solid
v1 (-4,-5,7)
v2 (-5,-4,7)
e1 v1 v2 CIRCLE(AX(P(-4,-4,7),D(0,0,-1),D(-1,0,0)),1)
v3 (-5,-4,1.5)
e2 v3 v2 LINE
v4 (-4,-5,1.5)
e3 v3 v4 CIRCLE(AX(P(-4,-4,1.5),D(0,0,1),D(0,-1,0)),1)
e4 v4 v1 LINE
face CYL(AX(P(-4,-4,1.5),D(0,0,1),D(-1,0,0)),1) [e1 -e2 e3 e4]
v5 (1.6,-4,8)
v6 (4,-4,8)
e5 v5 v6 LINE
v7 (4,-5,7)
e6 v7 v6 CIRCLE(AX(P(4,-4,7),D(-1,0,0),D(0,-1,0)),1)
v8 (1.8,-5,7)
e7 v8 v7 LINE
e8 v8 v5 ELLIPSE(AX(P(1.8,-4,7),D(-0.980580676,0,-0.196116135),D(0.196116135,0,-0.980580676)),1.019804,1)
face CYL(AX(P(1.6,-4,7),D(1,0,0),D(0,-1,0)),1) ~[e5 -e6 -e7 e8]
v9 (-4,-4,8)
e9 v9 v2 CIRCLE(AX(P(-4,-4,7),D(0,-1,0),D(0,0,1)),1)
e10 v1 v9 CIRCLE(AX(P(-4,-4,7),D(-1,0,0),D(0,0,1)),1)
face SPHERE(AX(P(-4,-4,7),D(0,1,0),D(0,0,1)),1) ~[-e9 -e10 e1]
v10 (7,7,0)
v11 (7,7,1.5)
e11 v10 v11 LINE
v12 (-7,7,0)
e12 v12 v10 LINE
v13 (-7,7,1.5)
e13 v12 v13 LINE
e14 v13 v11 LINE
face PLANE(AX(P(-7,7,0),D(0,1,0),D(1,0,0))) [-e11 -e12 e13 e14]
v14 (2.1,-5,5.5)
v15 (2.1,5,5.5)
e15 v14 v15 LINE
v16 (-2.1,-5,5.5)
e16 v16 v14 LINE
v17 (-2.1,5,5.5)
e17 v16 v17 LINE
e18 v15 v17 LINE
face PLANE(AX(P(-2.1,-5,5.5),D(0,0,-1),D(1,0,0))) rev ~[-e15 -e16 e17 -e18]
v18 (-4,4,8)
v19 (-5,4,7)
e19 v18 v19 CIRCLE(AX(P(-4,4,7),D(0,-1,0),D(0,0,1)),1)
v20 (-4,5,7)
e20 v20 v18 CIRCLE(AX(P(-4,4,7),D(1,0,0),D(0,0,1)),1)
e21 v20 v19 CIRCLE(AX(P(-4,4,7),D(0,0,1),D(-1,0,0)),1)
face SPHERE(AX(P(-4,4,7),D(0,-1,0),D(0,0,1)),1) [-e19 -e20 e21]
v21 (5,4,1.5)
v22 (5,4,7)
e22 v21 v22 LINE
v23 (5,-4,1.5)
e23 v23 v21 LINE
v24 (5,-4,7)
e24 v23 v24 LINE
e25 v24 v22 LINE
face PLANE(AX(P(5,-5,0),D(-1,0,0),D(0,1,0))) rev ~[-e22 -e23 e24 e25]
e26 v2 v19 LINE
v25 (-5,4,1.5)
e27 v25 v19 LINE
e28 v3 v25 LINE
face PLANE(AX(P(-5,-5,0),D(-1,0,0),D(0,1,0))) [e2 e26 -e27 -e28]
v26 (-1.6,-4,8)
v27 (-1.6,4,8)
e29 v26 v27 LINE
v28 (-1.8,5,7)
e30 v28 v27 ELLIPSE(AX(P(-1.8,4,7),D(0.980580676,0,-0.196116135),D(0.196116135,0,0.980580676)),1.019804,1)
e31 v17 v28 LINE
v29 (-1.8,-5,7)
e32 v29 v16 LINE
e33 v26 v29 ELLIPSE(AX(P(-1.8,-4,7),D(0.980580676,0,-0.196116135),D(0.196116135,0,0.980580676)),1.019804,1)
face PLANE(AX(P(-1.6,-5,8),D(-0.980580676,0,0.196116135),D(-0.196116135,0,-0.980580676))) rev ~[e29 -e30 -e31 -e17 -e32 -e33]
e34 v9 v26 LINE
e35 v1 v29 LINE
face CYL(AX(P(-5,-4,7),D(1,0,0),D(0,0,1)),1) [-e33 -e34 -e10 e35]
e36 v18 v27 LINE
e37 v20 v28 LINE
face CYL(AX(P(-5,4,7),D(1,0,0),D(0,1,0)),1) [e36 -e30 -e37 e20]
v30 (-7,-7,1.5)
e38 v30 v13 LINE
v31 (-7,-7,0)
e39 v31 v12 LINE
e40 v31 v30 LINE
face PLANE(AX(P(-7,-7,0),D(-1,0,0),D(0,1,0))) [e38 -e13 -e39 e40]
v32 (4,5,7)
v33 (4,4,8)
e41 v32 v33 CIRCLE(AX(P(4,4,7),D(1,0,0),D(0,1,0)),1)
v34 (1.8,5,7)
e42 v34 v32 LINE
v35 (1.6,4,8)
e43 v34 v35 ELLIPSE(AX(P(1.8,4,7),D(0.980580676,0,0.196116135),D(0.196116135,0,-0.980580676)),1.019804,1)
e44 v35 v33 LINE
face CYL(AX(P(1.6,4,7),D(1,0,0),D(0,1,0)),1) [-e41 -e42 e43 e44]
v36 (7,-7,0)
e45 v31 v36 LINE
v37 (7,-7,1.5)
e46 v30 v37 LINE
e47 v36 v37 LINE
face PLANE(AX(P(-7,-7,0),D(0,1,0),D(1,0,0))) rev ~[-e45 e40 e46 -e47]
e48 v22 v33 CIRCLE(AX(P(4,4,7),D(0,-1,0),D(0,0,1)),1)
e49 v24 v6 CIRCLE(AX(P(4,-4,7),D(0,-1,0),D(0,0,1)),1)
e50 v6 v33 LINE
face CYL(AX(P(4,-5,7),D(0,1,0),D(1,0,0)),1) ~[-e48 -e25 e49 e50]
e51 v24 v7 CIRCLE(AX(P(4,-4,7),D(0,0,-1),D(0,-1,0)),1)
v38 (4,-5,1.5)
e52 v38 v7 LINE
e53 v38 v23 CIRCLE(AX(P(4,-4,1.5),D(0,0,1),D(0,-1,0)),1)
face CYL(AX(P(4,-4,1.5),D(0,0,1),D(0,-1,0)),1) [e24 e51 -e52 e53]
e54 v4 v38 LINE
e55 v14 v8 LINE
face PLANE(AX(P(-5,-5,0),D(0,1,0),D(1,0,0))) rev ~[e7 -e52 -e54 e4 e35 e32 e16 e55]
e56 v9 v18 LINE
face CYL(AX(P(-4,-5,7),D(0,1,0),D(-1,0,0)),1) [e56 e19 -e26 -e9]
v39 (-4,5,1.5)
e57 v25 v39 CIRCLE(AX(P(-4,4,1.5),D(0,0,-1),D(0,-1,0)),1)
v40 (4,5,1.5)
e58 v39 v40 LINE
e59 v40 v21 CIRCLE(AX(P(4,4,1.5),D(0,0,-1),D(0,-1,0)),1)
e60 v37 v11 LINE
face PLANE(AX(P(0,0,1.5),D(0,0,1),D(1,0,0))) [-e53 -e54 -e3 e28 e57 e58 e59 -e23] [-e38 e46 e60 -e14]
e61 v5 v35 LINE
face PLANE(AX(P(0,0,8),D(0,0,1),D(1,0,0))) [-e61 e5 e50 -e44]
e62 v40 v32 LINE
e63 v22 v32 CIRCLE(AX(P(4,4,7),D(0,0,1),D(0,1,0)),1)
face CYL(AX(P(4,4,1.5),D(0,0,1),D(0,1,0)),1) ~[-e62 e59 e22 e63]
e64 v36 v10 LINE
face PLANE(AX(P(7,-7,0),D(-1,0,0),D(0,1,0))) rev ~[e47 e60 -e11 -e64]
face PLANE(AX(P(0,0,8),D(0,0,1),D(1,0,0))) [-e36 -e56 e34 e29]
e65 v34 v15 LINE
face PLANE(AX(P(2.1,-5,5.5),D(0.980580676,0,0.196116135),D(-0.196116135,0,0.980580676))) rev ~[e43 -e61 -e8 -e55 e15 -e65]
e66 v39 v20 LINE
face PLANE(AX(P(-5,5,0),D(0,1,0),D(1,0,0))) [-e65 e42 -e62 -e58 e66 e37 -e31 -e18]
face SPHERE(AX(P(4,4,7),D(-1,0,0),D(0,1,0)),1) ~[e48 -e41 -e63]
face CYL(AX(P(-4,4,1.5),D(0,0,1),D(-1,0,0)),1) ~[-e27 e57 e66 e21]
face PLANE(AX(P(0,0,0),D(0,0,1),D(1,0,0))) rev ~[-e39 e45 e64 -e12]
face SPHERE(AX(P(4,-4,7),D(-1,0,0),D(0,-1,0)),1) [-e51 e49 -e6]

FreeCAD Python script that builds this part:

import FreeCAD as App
import Part
import Sketcher

V = App.Vector
Q = App.Units.Quantity


def edges_at(feature, points):
    """Names of the edges that pass closest to the given points."""
    edges = feature.Shape.Edges
    near = lambda p: min(range(len(edges)), key=lambda i: edges[i].distToShape(Part.Vertex(*p))[0])
    return sorted({f"Edge{near(p) + 1}" for p in points})

doc = App.newDocument("Part")
body = doc.addObject("PartDesign::Body", "Body")

# Sketch on XY plane
sketch1 = body.newObject("Sketcher::SketchObject", "Sketch")
sketch1.AttachmentSupport = (doc.getObject("XY_Plane"), [""])
sketch1.MapMode = "FlatFace"
sketch1.addGeometry(Part.LineSegment(V(-7, 7, 0), V(-7, -7, 0)), False)
sketch1.addGeometry(Part.LineSegment(V(-7, -7, 0), V(7, -7, 0)), False)
sketch1.addGeometry(Part.LineSegment(V(7, -7, 0), V(7, 7, 0)), False)
sketch1.addGeometry(Part.LineSegment(V(7, 7, 0), V(-7, 7, 0)), False)
sketch1.addGeometry(Part.LineSegment(V(5, -5, 0), V(-5, -5, 0)), False)
sketch1.addGeometry(Part.LineSegment(V(-5, -5, 0), V(-5, 5, 0)), False)
sketch1.addGeometry(Part.LineSegment(V(-5, 5, 0), V(5, 5, 0)), False)
sketch1.addGeometry(Part.LineSegment(V(5, 5, 0), V(5, -5, 0)), False)
sketch1.addConstraint(Sketcher.Constraint("Coincident", 0, 2, 1, 1))
sketch1.addConstraint(Sketcher.Constraint("Coincident", 1, 2, 2, 1))
sketch1.addConstraint(Sketcher.Constraint("Coincident", 2, 2, 3, 1))
sketch1.addConstraint(Sketcher.Constraint("Coincident", 3, 2, 0, 1))
sketch1.addConstraint(Sketcher.Constraint("Coincident", 4, 2, 5, 1))
sketch1.addConstraint(Sketcher.Constraint("Coincident", 5, 2, 6, 1))
sketch1.addConstraint(Sketcher.Constraint("Coincident", 6, 2, 7, 1))
sketch1.addConstraint(Sketcher.Constraint("Coincident", 7, 2, 4, 1))
sketch1.addConstraint(Sketcher.Constraint("Vertical", 0))
sketch1.addConstraint(Sketcher.Constraint("Horizontal", 1))
sketch1.addConstraint(Sketcher.Constraint("Vertical", 2))
sketch1.addConstraint(Sketcher.Constraint("Horizontal", 3))
sketch1.addConstraint(Sketcher.Constraint("Horizontal", 4))
sketch1.addConstraint(Sketcher.Constraint("Vertical", 5))
sketch1.addConstraint(Sketcher.Constraint("Horizontal", 6))
sketch1.addConstraint(Sketcher.Constraint("Vertical", 7))
sketch1.addConstraint(Sketcher.Constraint("Symmetric", 0, 2, 2, 2, -1, 1))
sketch1.addConstraint(Sketcher.Constraint("Symmetric", 4, 2, 6, 2, -1, 1))
sketch1.addConstraint(Sketcher.Constraint("Equal", 3, 0))
sketch1.addConstraint(Sketcher.Constraint("Equal", 6, 5))
sketch1.addConstraint(Sketcher.Constraint("DistanceX", 1, 1, 1, 2, Q("14 mm")))
sketch1.addConstraint(Sketcher.Constraint("DistanceX", 4, 2, 4, 1, Q("10 mm")))
pad1 = body.newObject("PartDesign::Pad", "Pad")
pad1.Profile = sketch1
pad1.Length = 1.5

# Sketch on XY plane
sketch2 = body.newObject("Sketcher::SketchObject", "Sketch001")
sketch2.AttachmentSupport = (doc.getObject("XY_Plane"), [""])
sketch2.MapMode = "FlatFace"
sketch2.addGeometry(Part.LineSegment(V(-5, 5, 0), V(-5, -5, 0)), False)
sketch2.addGeometry(Part.LineSegment(V(-5, -5, 0), V(5, -5, 0)), False)
sketch2.addGeometry(Part.LineSegment(V(5, -5, 0), V(5, 5, 0)), False)
sketch2.addGeometry(Part.LineSegment(V(5, 5, 0), V(-5, 5, 0)), False)
sketch2.addConstraint(Sketcher.Constraint("Coincident", 0, 2, 1, 1))
sketch2.addConstraint(Sketcher.Constraint("Coincident", 1, 2, 2, 1))
sketch2.addConstraint(Sketcher.Constraint("Coincident", 2, 2, 3, 1))
sketch2.addConstraint(Sketcher.Constraint("Coincident", 3, 2, 0, 1))
sketch2.addConstraint(Sketcher.Constraint("Vertical", 0))
sketch2.addConstraint(Sketcher.Constraint("Horizontal", 1))
sketch2.addConstraint(Sketcher.Constraint("Vertical", 2))
sketch2.addConstraint(Sketcher.Constraint("Horizontal", 3))
sketch2.addConstraint(Sketcher.Constraint("Symmetric", 0, 2, 2, 2, -1, 1))
sketch2.addConstraint(Sketcher.Constraint("Equal", 3, 0))
sketch2.addConstraint(Sketcher.Constraint("DistanceX", 1, 1, 1, 2, Q("10 mm")))
pad2 = body.newObject("PartDesign::Pad", "Pad001")
pad2.Profile = sketch2
pad2.Length = 8

# Sketch on XZ plane
sketch3 = body.newObject("Sketcher::SketchObject", "Sketch002")
sketch3.AttachmentSupport = (doc.getObject("XZ_Plane"), [""])
sketch3.MapMode = "FlatFace"
sketch3.AttachmentOffset = App.Placement(V(0, 0, 5), App.Rotation())
sketch3.addGeometry(Part.LineSegment(V(1.6, 8, 0), V(-1.6, 8, 0)), False)
sketch3.addGeometry(Part.LineSegment(V(-1.6, 8, 0), V(-2.1, 5.5, 0)), False)
sketch3.addGeometry(Part.LineSegment(V(-2.1, 5.5, 0), V(2.1, 5.5, 0)), False)
sketch3.addGeometry(Part.LineSegment(V(2.1, 5.5, 0), V(1.6, 8, 0)), False)
sketch3.addConstraint(Sketcher.Constraint("Coincident", 0, 2, 1, 1))
sketch3.addConstraint(Sketcher.Constraint("Coincident", 1, 2, 2, 1))
sketch3.addConstraint(Sketcher.Constraint("Coincident", 2, 2, 3, 1))
sketch3.addConstraint(Sketcher.Constraint("Coincident", 3, 2, 0, 1))
sketch3.addConstraint(Sketcher.Constraint("Horizontal", 0))
sketch3.addConstraint(Sketcher.Constraint("Horizontal", 2))
sketch3.addConstraint(Sketcher.Constraint("Equal", 1, 3))
sketch3.addConstraint(Sketcher.Constraint("DistanceX", 0, 2, 0, 1, Q("3.2 mm")))
sketch3.addConstraint(Sketcher.Constraint("DistanceX", 2, 1, 2, 2, Q("4.2 mm")))
sketch3.addConstraint(Sketcher.Constraint("DistanceY", -1, 1, 0, 2, Q("8 mm")))
sketch3.addConstraint(Sketcher.Constraint("DistanceX", 0, 2, -1, 1, Q("1.6 mm")))
sketch3.addConstraint(Sketcher.Constraint("DistanceY", -1, 1, 1, 2, Q("5.5 mm")))
pocket1 = body.newObject("PartDesign::Pocket", "Pocket")
pocket1.Profile = sketch3
pocket1.Length = 25
doc.recompute()

fillet = body.newObject("PartDesign::Fillet", "Fillet")
fillet.Base = (pocket1, edges_at(pocket1, [
    (-5, 0, 8),
    (3.3, -5, 8),
    (-3.3, -5, 8),
    (-3.3, 5, 8),
    (3.3, 5, 8),
    (-5, 5, 4.75),
    (-5, -5, 4.75),
    (5, -5, 4.75),
    (5, 5, 4.75),
    (5, 0, 8),
]))
fillet.Radius = 1

doc.recompute()
